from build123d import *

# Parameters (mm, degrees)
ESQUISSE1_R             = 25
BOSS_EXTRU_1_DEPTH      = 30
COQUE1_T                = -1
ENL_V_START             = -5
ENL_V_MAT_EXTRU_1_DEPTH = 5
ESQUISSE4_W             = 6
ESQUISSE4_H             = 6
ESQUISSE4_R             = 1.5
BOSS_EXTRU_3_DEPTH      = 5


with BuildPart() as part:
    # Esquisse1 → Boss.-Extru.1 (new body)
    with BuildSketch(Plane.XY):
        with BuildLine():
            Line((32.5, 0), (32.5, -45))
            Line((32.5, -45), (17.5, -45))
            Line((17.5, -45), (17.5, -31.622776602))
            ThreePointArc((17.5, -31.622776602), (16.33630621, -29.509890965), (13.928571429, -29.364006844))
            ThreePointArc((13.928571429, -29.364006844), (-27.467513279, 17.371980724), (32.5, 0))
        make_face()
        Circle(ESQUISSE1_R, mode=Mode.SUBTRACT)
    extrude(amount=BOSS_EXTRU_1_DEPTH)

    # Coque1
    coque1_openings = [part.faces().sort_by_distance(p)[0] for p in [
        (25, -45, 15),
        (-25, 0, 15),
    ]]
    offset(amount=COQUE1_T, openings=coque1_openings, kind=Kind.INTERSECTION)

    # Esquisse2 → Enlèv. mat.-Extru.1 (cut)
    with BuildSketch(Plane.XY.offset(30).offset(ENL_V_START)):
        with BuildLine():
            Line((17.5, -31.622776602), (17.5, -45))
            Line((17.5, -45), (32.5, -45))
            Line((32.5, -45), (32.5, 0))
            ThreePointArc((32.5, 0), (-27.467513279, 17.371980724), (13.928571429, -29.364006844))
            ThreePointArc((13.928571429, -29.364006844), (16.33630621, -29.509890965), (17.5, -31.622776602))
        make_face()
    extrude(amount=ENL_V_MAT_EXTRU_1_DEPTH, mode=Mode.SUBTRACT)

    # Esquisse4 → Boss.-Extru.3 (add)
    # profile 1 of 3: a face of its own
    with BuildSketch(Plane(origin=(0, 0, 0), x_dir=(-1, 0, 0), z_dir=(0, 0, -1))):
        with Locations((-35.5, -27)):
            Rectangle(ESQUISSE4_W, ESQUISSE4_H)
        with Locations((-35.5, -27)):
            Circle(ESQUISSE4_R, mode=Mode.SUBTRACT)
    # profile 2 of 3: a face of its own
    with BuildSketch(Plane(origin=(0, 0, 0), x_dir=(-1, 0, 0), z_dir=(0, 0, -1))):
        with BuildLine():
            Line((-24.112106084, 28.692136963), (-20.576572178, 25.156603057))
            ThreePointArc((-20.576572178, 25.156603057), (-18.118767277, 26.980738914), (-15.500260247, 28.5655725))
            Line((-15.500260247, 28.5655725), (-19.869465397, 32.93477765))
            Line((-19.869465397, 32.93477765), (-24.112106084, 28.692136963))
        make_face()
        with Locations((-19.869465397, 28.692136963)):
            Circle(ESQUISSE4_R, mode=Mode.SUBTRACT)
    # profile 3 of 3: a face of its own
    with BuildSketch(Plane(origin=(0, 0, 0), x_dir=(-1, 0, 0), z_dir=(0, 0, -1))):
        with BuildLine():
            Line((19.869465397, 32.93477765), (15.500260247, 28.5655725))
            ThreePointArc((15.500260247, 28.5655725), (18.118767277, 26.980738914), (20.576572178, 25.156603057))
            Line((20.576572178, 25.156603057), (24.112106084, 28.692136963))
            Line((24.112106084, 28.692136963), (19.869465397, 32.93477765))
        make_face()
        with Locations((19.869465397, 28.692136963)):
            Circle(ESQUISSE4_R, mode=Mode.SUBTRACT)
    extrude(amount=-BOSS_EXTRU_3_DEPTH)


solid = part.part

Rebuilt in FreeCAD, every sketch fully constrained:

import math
import FreeCAD as App
import Part
import Sketcher
from FreeCAD import Vector


def faces_at(feature, points):
    """Names of the faces that lie closest to the given points."""
    faces = feature.Shape.Faces
    near = lambda p: min(range(len(faces)), key=lambda i: faces[i].distToShape(Part.Vertex(*p))[0])
    return sorted({f"Face{near(p) + 1}" for p in points})


def add_polygon(sketch, points):
    """Adds a closed chain of lines whose ends are joined by coincident constraints."""
    first, n = sketch.GeometryCount, len(points)
    for a, b in zip(points, points[1:] + points[:1]):
        sketch.addGeometry(Part.LineSegment(App.Vector(*a, 0), App.Vector(*b, 0)), False)
    for i in range(n):
        sketch.addConstraint(Sketcher.Constraint("Coincident", first + i, 2, first + (i + 1) % n, 1))

doc = App.newDocument("Part")
body = doc.addObject("PartDesign::Body", "Body")

sketch1 = body.newObject("Sketcher::SketchObject", "Sketch")
sketch1.AttachmentSupport = (doc.getObject("XY_Plane"), [""])
sketch1.MapMode = "FlatFace"
sketch1.addGeometry([
    Part.LineSegment(Vector(32.5, -45, 0), Vector(32.5, 0, 0)),
    Part.ArcOfCircle(Part.Circle(Vector(0, 0, 0), Vector(0, 0, 1), 32.5), math.radians(0), math.radians(295)),
    Part.ArcOfCircle(Part.Circle(Vector(15, -31.6, 0), Vector(0, 0, 1), 2.5), math.radians(0), math.radians(115)),
    Part.LineSegment(Vector(17.5, -31.6, 0), Vector(17.5, -45, 0)),
    Part.LineSegment(Vector(17.5, -45, 0), Vector(32.5, -45, 0)),
    Part.Circle(Vector(0, 0, 0), Vector(0, 0, 1), 25),
], False)
sketch1.addConstraint([
    Sketcher.Constraint("Tangent", 0, 2, 1, 1),
    Sketcher.Constraint("Tangent", 1, 2, 2, 2),
    Sketcher.Constraint("Tangent", 2, 1, 3, 1),
    Sketcher.Constraint("Coincident", 3, 2, 4, 1),
    Sketcher.Constraint("Coincident", 4, 2, 0, 1),
    Sketcher.Constraint("Vertical", 0),
    Sketcher.Constraint("Vertical", 3),
    Sketcher.Constraint("Horizontal", 4),
    Sketcher.Constraint("Coincident", 1, 3, -1, 1),
    Sketcher.Constraint("Coincident", 5, 3, -1, 1),
    Sketcher.Constraint("Diameter", 5, 50.0),
    Sketcher.Constraint("Radius", 1, 32.5),
    Sketcher.Constraint("Radius", 2, 2.5),
    Sketcher.Constraint("DistanceX", 4, 1, 4, 2, 15.0),
    Sketcher.Constraint("DistanceY", 0, 1, 0, 2, 45.0),
])
pad1 = body.newObject("PartDesign::Pad", "Pad")
pad1.Profile = sketch1
pad1.Length = 30
doc.recompute()

thickness = body.newObject("PartDesign::Thickness", "Thickness")
thickness.Base = (pad1, faces_at(pad1, [(25, -45, 15), (-25, 0, 15)]))
thickness.Value = 1
thickness.Reversed = True
thickness.Join = "Intersection"

sketch2 = body.newObject("Sketcher::SketchObject", "Sketch001")
sketch2.AttachmentSupport = (doc.getObject("XY_Plane"), [""])
sketch2.MapMode = "FlatFace"
sketch2.AttachmentOffset = App.Placement(Vector(0, 0, 25), App.Rotation())
sketch2.addGeometry([
    Part.LineSegment(Vector(17.5, -31.6, 0), Vector(17.5, -45, 0)),
    Part.LineSegment(Vector(17.5, -45, 0), Vector(32.5, -45, 0)),
    Part.LineSegment(Vector(32.5, -45, 0), Vector(32.5, 0, 0)),
    Part.ArcOfCircle(Part.Circle(Vector(0, 0, 0), Vector(0, 0, 1), 32.5), math.radians(0), math.radians(295)),
    Part.ArcOfCircle(Part.Circle(Vector(15, -31.6, 0), Vector(0, 0, 1), 2.5), math.radians(0), math.radians(115)),
], False)
sketch2.addConstraint([
    Sketcher.Constraint("Coincident", 0, 2, 1, 1),
    Sketcher.Constraint("Coincident", 1, 2, 2, 1),
    Sketcher.Constraint("Tangent", 2, 2, 3, 1),
    Sketcher.Constraint("Tangent", 3, 2, 4, 2),
    Sketcher.Constraint("Tangent", 4, 1, 0, 1),
    Sketcher.Constraint("Vertical", 0),
    Sketcher.Constraint("Horizontal", 1),
    Sketcher.Constraint("Vertical", 2),
    Sketcher.Constraint("Coincident", 3, 3, -1, 1),
    Sketcher.Constraint("Radius", 3, 32.5),
    Sketcher.Constraint("Radius", 4, 2.5),
    Sketcher.Constraint("DistanceX", 1, 1, 1, 2, 15.0),
    Sketcher.Constraint("DistanceY", 2, 1, 2, 2, 45.0),
])
pocket1 = body.newObject("PartDesign::Pocket", "Pocket")
pocket1.Profile = sketch2
pocket1.Length = 5
pocket1.Reversed = True

sketch3 = body.newObject("Sketcher::SketchObject", "Sketch002")
sketch3.AttachmentSupport = (doc.getObject("XY_Plane"), [""])
sketch3.MapMode = "FlatFace"
add_polygon(sketch3, [(38.5, -24), (38.5, -30), (32.5, -30), (32.5, -24)])
sketch3.addGeometry(Part.Circle(Vector(35.5, -27, 0), Vector(0, 0, 1), 1.5), False)
sketch3.addGeometry(Part.LineSegment(Vector(24.1, 28.7, 0), Vector(20.6, 25.2, 0)), False)
sketch3.addGeometry(Part.ArcOfCircle(Part.Circle(Vector(0, 0, 0), Vector(0, 0, 1), 32.5), math.radians(50.72), math.radians(61.51)), False)
sketch3.addGeometry(Part.LineSegment(Vector(15.5, 28.6, 0), Vector(19.9, 32.9, 0)), False)
sketch3.addGeometry(Part.LineSegment(Vector(19.9, 32.9, 0), Vector(24.1, 28.7, 0)), False)
sketch3.addGeometry(Part.Circle(Vector(19.9, 28.7, 0), Vector(0, 0, 1), 1.5), False)
sketch3.addGeometry(Part.LineSegment(Vector(-19.9, 32.9, 0), Vector(-15.5, 28.6, 0)), False)
sketch3.addGeometry(Part.ArcOfCircle(Part.Circle(Vector(0, 0, 0), Vector(0, 0, 1), 32.5), math.radians(118.49), math.radians(129.28)), False)
sketch3.addGeometry(Part.LineSegment(Vector(-20.6, 25.2, 0), Vector(-24.1, 28.7, 0)), False)
sketch3.addGeometry(Part.LineSegment(Vector(-24.1, 28.7, 0), Vector(-19.9, 32.9, 0)), False)
sketch3.addGeometry(Part.Circle(Vector(-19.9, 28.7, 0), Vector(0, 0, 1), 1.5), False)
sketch3.addConstraint([
    Sketcher.Constraint("Coincident", 5, 2, 6, 1),
    Sketcher.Constraint("Coincident", 6, 2, 7, 1),
    Sketcher.Constraint("Coincident", 7, 2, 8, 1),
    Sketcher.Constraint("Coincident", 8, 2, 5, 1),
    Sketcher.Constraint("Coincident", 10, 2, 11, 1),
    Sketcher.Constraint("Coincident", 11, 2, 12, 1),
    Sketcher.Constraint("Coincident", 12, 2, 13, 1),
    Sketcher.Constraint("Coincident", 13, 2, 10, 1),
    Sketcher.Constraint("Vertical", 0),
    Sketcher.Constraint("Horizontal", 1),
    Sketcher.Constraint("Vertical", 2),
    Sketcher.Constraint("Horizontal", 3),
    Sketcher.Constraint("Coincident", 6, 3, -1, 1),
    Sketcher.Constraint("Coincident", 11, 3, -1, 1),
    Sketcher.Constraint("Equal", 4, 9),
    Sketcher.Constraint("Equal", 6, 11),
    Sketcher.Constraint("Equal", 9, 14),
    Sketcher.Constraint("Symmetric", 9, 3, 14, 3, -2),
    Sketcher.Constraint("Symmetric", 8, 2, 12, 2, -2),
    Sketcher.Constraint("Symmetric", 7, 2, 13, 2, -2),
    Sketcher.Constraint("Parallel", 5, 7),
    Sketcher.Constraint("Perpendicular", 7, 8),
    Sketcher.Constraint("Parallel", 8, 10),
    Sketcher.Constraint("Parallel", 10, 12),
    Sketcher.Constraint("Perpendicular", 12, 13),
    Sketcher.Constraint("Horizontal", 14, 3, 8, 2),
    Sketcher.Constraint("Vertical", 9, 3, 7, 2),
    Sketcher.Constraint("Equal", 3, 0),
    Sketcher.Constraint("Diameter", 4, 3.0),
    Sketcher.Constraint("Radius", 6, 32.5),
    Sketcher.Constraint("DistanceX", 1, 2, 1, 1, 6.0),
    Sketcher.Constraint("Distance", 5, 5.0),
    Sketcher.Constraint("Distance", 8, 6.0),
    Sketcher.Constraint("DistanceY", 4, 3, -1, 1, 27.0),
    Sketcher.Constraint("DistanceY", 0, 2, -1, 1, 30.0),
    Sketcher.Constraint("DistanceX", 4, 3, 0, 2, 3.0),
    Sketcher.Constraint("DistanceX", -1, 1, 4, 3, 35.5),
    Sketcher.Constraint("Distance", 7, 6.178989),
])
pad2 = body.newObject("PartDesign::Pad", "Pad001")
pad2.Profile = sketch3
pad2.Length = 5

doc.recompute()
